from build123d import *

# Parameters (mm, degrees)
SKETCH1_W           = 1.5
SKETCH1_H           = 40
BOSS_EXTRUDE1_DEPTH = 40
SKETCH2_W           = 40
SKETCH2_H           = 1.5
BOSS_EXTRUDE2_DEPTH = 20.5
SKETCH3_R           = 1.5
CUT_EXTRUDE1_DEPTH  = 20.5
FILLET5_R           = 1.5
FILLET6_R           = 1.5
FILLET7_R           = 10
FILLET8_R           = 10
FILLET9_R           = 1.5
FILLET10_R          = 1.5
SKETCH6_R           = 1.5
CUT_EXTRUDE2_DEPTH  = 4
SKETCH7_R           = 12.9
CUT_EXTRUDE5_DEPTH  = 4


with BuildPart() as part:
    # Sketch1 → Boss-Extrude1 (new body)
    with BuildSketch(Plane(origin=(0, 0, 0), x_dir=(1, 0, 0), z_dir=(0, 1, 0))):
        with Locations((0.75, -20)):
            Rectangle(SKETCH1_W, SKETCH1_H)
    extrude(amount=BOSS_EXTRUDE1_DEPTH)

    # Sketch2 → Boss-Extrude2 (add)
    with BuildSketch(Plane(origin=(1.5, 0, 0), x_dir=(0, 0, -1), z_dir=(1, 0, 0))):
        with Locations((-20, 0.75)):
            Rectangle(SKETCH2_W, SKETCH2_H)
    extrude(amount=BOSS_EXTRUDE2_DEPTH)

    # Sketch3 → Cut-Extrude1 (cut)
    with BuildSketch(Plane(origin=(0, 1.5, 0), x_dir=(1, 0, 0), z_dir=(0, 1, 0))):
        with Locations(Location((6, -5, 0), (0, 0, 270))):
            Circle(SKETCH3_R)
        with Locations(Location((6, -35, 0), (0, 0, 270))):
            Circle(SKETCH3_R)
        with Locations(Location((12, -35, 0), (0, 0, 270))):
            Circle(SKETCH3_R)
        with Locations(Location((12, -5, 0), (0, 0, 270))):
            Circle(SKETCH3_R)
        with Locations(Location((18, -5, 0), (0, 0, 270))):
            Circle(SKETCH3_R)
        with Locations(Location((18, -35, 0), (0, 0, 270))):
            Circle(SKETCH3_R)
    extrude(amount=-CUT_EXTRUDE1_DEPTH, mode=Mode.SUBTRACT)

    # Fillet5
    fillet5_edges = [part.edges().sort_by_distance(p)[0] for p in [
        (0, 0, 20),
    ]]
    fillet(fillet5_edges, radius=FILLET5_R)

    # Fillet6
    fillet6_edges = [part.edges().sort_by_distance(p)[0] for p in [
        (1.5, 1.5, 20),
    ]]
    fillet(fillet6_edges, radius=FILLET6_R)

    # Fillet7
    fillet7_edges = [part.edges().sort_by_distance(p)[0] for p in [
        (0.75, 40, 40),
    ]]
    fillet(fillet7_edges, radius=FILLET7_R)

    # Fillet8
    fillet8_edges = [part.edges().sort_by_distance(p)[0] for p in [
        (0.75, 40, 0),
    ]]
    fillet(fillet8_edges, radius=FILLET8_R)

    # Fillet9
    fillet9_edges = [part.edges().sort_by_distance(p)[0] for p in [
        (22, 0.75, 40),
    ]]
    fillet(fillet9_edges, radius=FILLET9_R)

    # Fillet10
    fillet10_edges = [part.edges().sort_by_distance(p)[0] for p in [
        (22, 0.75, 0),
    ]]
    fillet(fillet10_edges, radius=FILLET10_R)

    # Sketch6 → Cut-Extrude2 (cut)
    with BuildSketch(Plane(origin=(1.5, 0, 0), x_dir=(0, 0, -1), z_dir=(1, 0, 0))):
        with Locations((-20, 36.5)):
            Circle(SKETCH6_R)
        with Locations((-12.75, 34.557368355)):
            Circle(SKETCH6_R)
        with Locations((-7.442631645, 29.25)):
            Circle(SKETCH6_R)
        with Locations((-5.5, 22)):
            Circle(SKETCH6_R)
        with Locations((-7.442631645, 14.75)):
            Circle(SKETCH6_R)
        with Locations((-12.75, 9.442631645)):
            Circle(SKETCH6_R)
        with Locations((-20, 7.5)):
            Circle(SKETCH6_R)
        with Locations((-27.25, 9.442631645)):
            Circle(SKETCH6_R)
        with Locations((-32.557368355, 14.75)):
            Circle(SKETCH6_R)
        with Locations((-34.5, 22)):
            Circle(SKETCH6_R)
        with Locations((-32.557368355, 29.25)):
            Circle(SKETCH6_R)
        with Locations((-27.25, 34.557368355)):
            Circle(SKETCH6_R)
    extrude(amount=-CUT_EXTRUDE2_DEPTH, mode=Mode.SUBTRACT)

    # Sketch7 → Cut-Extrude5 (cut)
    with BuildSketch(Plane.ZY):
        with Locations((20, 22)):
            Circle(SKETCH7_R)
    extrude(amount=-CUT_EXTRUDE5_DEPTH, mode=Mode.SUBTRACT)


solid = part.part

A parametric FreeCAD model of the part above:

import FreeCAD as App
import Part
import Sketcher
from FreeCAD import Vector
Q = App.Units.Quantity


def edges_at(feature, points):
    """Names of the edges that pass closest to the given points."""
    edges = feature.Shape.Edges
    near = lambda p: min(range(len(edges)), key=lambda i: edges[i].distToShape(Part.Vertex(*p))[0])
    return sorted({f"Edge{near(p) + 1}" for p in points})


def add_polygon(sketch, points):
    """Adds a closed chain of lines whose ends are joined by coincident constraints."""
    first, n = sketch.GeometryCount, len(points)
    for a, b in zip(points, points[1:] + points[:1]):
        sketch.addGeometry(Part.LineSegment(App.Vector(*a, 0), App.Vector(*b, 0)), False)
    for i in range(n):
        sketch.addConstraint(Sketcher.Constraint("Coincident", first + i, 2, first + (i + 1) % n, 1))

doc = App.newDocument("Part")
body = doc.addObject("PartDesign::Body", "Body")

# Sketch on XZ plane
sketch1 = body.newObject("Sketcher::SketchObject", "Sketch")
sketch1.AttachmentSupport = (doc.getObject("XZ_Plane"), [""])
sketch1.MapMode = "FlatFace"
add_polygon(sketch1, [(0, 0), (0, 40), (1.5, 40), (1.5, 0)])  # lines 0-3
sketch1.addConstraint([
    Sketcher.Constraint("Vertical", 0),
    Sketcher.Constraint("Horizontal", 1),
    Sketcher.Constraint("Vertical", 2),
    Sketcher.Constraint("Horizontal", 3),
    Sketcher.Constraint("Coincident", 3, 2, -1, 1),
    Sketcher.Constraint("DistanceY", 0, 1, 0, 2, Q("40 mm")),
    Sketcher.Constraint("DistanceX", 1, 1, 1, 2, Q("1.5 mm")),
])
pad1 = body.newObject("PartDesign::Pad", "Pad")
pad1.Profile = sketch1
pad1.Length = 40
pad1.Reversed = True

# Sketch on YZ plane
sketch2 = body.newObject("Sketcher::SketchObject", "Sketch001")
sketch2.AttachmentSupport = (doc.getObject("YZ_Plane"), [""])
sketch2.MapMode = "FlatFace"
sketch2.AttachmentOffset = App.Placement(Vector(0, 0, 1.5), App.Rotation())
add_polygon(sketch2, [(1.5, 40), (0, 40), (0, 0), (1.5, 0)])  # lines 0-3
sketch2.addConstraint([
    Sketcher.Constraint("Horizontal", 0),
    Sketcher.Constraint("Vertical", 1),
    Sketcher.Constraint("Horizontal", 2),
    Sketcher.Constraint("Vertical", 3),
    Sketcher.Constraint("Coincident", 1, 2, -1, 1),
    Sketcher.Constraint("DistanceY", 1, 2, 1, 1, Q("40 mm")),
    Sketcher.Constraint("DistanceX", 0, 2, 0, 1, Q("1.5 mm")),
])
pad2 = body.newObject("PartDesign::Pad", "Pad001")
pad2.Profile = sketch2
pad2.Length = 20.5

# Sketch on XZ plane
sketch3 = body.newObject("Sketcher::SketchObject", "Sketch002")
sketch3.AttachmentSupport = (doc.getObject("XZ_Plane"), [""])
sketch3.MapMode = "FlatFace"
sketch3.AttachmentOffset = App.Placement(Vector(0, 0, -1.5), App.Rotation())
sketch3.addGeometry([
    Part.Circle(Vector(6, 5, 0), Vector(0, 0, 1), 1.5),  # 0
    Part.Circle(Vector(6, 35, 0), Vector(0, 0, 1), 1.5),  # 1
    Part.Circle(Vector(12, 35, 0), Vector(0, 0, 1), 1.5),  # 2
    Part.Circle(Vector(12, 5, 0), Vector(0, 0, 1), 1.5),  # 3
    Part.Circle(Vector(18, 5, 0), Vector(0, 0, 1), 1.5),  # 4
    Part.Circle(Vector(18, 35, 0), Vector(0, 0, 1), 1.5),  # 5
], False)
sketch3.addConstraint([
    Sketcher.Constraint("Equal", 0, 1),
    Sketcher.Constraint("Equal", 1, 2),
    Sketcher.Constraint("Equal", 2, 3),
    Sketcher.Constraint("Equal", 3, 4),
    Sketcher.Constraint("Equal", 4, 5),
    Sketcher.Constraint("Horizontal", 1, 3, 2, 3),
    Sketcher.Constraint("Horizontal", 0, 3, 3, 3),
    Sketcher.Constraint("Horizontal", 3, 3, 4, 3),
    Sketcher.Constraint("Horizontal", 2, 3, 5, 3),
    Sketcher.Constraint("Vertical", 0, 3, 1, 3),
    Sketcher.Constraint("Vertical", 2, 3, 3, 3),
    Sketcher.Constraint("Vertical", 4, 3, 5, 3),
    Sketcher.Constraint("Diameter", 0, Q("3 mm")),
    Sketcher.Constraint("DistanceX", -1, 1, 0, 3, Q("6 mm")),
    Sketcher.Constraint("DistanceY", -1, 1, 0, 3, Q("5 mm")),
    Sketcher.Constraint("DistanceY", -1, 1, 1, 3, Q("35 mm")),
    Sketcher.Constraint("DistanceX", -1, 1, 2, 3, Q("12 mm")),
    Sketcher.Constraint("DistanceX", -1, 1, 4, 3, Q("18 mm")),
])
pocket1 = body.newObject("PartDesign::Pocket", "Pocket")
pocket1.Profile = sketch3
pocket1.Length = 20.5
pocket1.Reversed = True
doc.recompute()

fillet = body.newObject("PartDesign::Fillet", "Fillet")
fillet.Base = (pocket1, edges_at(pocket1, [(0, 0, 20)]))
fillet.Radius = 1.5
doc.recompute()

fillet2 = body.newObject("PartDesign::Fillet", "Fillet001")
fillet2.Base = (fillet, edges_at(fillet, [(1.5, 1.5, 20)]))
fillet2.Radius = 1.5
doc.recompute()

fillet3 = body.newObject("PartDesign::Fillet", "Fillet002")
fillet3.Base = (fillet2, edges_at(fillet2, [(0.75, 40, 40)]))
fillet3.Radius = 10
doc.recompute()

fillet4 = body.newObject("PartDesign::Fillet", "Fillet003")
fillet4.Base = (fillet3, edges_at(fillet3, [(0.75, 40, 0)]))
fillet4.Radius = 10
doc.recompute()

fillet5 = body.newObject("PartDesign::Fillet", "Fillet004")
fillet5.Base = (fillet4, edges_at(fillet4, [(22, 0.75, 40)]))
fillet5.Radius = 1.5
doc.recompute()

fillet6 = body.newObject("PartDesign::Fillet", "Fillet005")
fillet6.Base = (fillet5, edges_at(fillet5, [(22, 0.75, 0)]))
fillet6.Radius = 1.5

# Sketch on YZ plane
sketch4 = body.newObject("Sketcher::SketchObject", "Sketch003")
sketch4.AttachmentSupport = (doc.getObject("YZ_Plane"), [""])
sketch4.MapMode = "FlatFace"
sketch4.AttachmentOffset = App.Placement(Vector(0, 0, 1.5), App.Rotation())
sketch4.addGeometry([
    Part.Circle(Vector(36.5, 20, 0), Vector(0, 0, 1), 1.5),  # 0
    Part.Circle(Vector(34.6, 12.8, 0), Vector(0, 0, 1), 1.5),  # 1
    Part.Circle(Vector(29.2, 7.4, 0), Vector(0, 0, 1), 1.5),  # 2
    Part.Circle(Vector(22, 5.5, 0), Vector(0, 0, 1), 1.5),  # 3
    Part.Circle(Vector(14.8, 7.4, 0), Vector(0, 0, 1), 1.5),  # 4
    Part.Circle(Vector(9.4, 12.8, 0), Vector(0, 0, 1), 1.5),  # 5
    Part.Circle(Vector(7.5, 20, 0), Vector(0, 0, 1), 1.5),  # 6
    Part.Circle(Vector(9.4, 27.2, 0), Vector(0, 0, 1), 1.5),  # 7
    Part.Circle(Vector(14.8, 32.6, 0), Vector(0, 0, 1), 1.5),  # 8
    Part.Circle(Vector(22, 34.5, 0), Vector(0, 0, 1), 1.5),  # 9
    Part.Circle(Vector(29.2, 32.6, 0), Vector(0, 0, 1), 1.5),  # 10
    Part.Circle(Vector(34.6, 27.2, 0), Vector(0, 0, 1), 1.5),  # 11
], False)
sketch4.addConstraint([
    Sketcher.Constraint("Equal", 0, 1),
    Sketcher.Constraint("Equal", 1, 2),
    Sketcher.Constraint("Equal", 2, 3),
    Sketcher.Constraint("Equal", 3, 4),
    Sketcher.Constraint("Equal", 4, 5),
    Sketcher.Constraint("Equal", 5, 6),
    Sketcher.Constraint("Equal", 6, 7),
    Sketcher.Constraint("Equal", 7, 8),
    Sketcher.Constraint("Equal", 8, 9),
    Sketcher.Constraint("Equal", 9, 10),
    Sketcher.Constraint("Equal", 10, 11),
    Sketcher.Constraint("Horizontal", 2, 3, 4, 3),
    Sketcher.Constraint("Horizontal", 1, 3, 5, 3),
    Sketcher.Constraint("Horizontal", 0, 3, 6, 3),
    Sketcher.Constraint("Horizontal", 8, 3, 10, 3),
    Sketcher.Constraint("Horizontal", 7, 3, 11, 3),
    Sketcher.Constraint("Vertical", 5, 3, 7, 3),
    Sketcher.Constraint("Vertical", 4, 3, 8, 3),
    Sketcher.Constraint("Vertical", 3, 3, 9, 3),
    Sketcher.Constraint("Vertical", 2, 3, 10, 3),
    Sketcher.Constraint("Vertical", 1, 3, 11, 3),
    Sketcher.Constraint("Diameter", 0, Q("3 mm")),
    Sketcher.Constraint("DistanceY", -1, 1, 0, 3, Q("20 mm")),
    Sketcher.Constraint("DistanceX", -1, 1, 3, 3, Q("22 mm")),
    Sketcher.Constraint("DistanceX", -1, 1, 0, 3, Q("36.5 mm")),
    Sketcher.Constraint("DistanceY", -1, 1, 3, 3, Q("5.5 mm")),
    Sketcher.Constraint("DistanceX", -1, 1, 6, 3, Q("7.5 mm")),
    Sketcher.Constraint("DistanceY", -1, 1, 9, 3, Q("34.5 mm")),
    Sketcher.Constraint("DistanceX", 4, 3, 2, 3, Q("14.5 mm")),
    Sketcher.Constraint("DistanceY", 5, 3, 7, 3, Q("14.5 mm")),
    Sketcher.Constraint("DistanceY", -1, 1, 1, 3, Q("12.75 mm")),
    Sketcher.Constraint("DistanceX", -1, 1, 2, 3, Q("29.25 mm")),
    Sketcher.Constraint("DistanceX", -1, 1, 1, 3, Q("34.557368 mm")),
    Sketcher.Constraint("DistanceY", -1, 1, 2, 3, Q("7.442632 mm")),
    Sketcher.Constraint("DistanceX", -1, 1, 5, 3, Q("9.442632 mm")),
    Sketcher.Constraint("DistanceY", -1, 1, 8, 3, Q("32.557368 mm")),
])
pocket2 = body.newObject("PartDesign::Pocket", "Pocket001")
pocket2.Profile = sketch4
pocket2.Length = 4

# Sketch on YZ plane
sketch5 = body.newObject("Sketcher::SketchObject", "Sketch004")
sketch5.AttachmentSupport = (doc.getObject("YZ_Plane"), [""])
sketch5.MapMode = "FlatFace"
sketch5.addGeometry(Part.Circle(Vector(22, 20, 0), Vector(0, 0, 1), 13), False)
sketch5.addConstraint([
    Sketcher.Constraint("Diameter", 0, Q("25.8 mm")),
    Sketcher.Constraint("DistanceX", -1, 1, 0, 3, Q("22 mm")),
    Sketcher.Constraint("DistanceY", -1, 1, 0, 3, Q("20 mm")),
])
pocket3 = body.newObject("PartDesign::Pocket", "Pocket002")
pocket3.Profile = sketch5
pocket3.Length = 4
pocket3.Reversed = True

doc.recompute()
